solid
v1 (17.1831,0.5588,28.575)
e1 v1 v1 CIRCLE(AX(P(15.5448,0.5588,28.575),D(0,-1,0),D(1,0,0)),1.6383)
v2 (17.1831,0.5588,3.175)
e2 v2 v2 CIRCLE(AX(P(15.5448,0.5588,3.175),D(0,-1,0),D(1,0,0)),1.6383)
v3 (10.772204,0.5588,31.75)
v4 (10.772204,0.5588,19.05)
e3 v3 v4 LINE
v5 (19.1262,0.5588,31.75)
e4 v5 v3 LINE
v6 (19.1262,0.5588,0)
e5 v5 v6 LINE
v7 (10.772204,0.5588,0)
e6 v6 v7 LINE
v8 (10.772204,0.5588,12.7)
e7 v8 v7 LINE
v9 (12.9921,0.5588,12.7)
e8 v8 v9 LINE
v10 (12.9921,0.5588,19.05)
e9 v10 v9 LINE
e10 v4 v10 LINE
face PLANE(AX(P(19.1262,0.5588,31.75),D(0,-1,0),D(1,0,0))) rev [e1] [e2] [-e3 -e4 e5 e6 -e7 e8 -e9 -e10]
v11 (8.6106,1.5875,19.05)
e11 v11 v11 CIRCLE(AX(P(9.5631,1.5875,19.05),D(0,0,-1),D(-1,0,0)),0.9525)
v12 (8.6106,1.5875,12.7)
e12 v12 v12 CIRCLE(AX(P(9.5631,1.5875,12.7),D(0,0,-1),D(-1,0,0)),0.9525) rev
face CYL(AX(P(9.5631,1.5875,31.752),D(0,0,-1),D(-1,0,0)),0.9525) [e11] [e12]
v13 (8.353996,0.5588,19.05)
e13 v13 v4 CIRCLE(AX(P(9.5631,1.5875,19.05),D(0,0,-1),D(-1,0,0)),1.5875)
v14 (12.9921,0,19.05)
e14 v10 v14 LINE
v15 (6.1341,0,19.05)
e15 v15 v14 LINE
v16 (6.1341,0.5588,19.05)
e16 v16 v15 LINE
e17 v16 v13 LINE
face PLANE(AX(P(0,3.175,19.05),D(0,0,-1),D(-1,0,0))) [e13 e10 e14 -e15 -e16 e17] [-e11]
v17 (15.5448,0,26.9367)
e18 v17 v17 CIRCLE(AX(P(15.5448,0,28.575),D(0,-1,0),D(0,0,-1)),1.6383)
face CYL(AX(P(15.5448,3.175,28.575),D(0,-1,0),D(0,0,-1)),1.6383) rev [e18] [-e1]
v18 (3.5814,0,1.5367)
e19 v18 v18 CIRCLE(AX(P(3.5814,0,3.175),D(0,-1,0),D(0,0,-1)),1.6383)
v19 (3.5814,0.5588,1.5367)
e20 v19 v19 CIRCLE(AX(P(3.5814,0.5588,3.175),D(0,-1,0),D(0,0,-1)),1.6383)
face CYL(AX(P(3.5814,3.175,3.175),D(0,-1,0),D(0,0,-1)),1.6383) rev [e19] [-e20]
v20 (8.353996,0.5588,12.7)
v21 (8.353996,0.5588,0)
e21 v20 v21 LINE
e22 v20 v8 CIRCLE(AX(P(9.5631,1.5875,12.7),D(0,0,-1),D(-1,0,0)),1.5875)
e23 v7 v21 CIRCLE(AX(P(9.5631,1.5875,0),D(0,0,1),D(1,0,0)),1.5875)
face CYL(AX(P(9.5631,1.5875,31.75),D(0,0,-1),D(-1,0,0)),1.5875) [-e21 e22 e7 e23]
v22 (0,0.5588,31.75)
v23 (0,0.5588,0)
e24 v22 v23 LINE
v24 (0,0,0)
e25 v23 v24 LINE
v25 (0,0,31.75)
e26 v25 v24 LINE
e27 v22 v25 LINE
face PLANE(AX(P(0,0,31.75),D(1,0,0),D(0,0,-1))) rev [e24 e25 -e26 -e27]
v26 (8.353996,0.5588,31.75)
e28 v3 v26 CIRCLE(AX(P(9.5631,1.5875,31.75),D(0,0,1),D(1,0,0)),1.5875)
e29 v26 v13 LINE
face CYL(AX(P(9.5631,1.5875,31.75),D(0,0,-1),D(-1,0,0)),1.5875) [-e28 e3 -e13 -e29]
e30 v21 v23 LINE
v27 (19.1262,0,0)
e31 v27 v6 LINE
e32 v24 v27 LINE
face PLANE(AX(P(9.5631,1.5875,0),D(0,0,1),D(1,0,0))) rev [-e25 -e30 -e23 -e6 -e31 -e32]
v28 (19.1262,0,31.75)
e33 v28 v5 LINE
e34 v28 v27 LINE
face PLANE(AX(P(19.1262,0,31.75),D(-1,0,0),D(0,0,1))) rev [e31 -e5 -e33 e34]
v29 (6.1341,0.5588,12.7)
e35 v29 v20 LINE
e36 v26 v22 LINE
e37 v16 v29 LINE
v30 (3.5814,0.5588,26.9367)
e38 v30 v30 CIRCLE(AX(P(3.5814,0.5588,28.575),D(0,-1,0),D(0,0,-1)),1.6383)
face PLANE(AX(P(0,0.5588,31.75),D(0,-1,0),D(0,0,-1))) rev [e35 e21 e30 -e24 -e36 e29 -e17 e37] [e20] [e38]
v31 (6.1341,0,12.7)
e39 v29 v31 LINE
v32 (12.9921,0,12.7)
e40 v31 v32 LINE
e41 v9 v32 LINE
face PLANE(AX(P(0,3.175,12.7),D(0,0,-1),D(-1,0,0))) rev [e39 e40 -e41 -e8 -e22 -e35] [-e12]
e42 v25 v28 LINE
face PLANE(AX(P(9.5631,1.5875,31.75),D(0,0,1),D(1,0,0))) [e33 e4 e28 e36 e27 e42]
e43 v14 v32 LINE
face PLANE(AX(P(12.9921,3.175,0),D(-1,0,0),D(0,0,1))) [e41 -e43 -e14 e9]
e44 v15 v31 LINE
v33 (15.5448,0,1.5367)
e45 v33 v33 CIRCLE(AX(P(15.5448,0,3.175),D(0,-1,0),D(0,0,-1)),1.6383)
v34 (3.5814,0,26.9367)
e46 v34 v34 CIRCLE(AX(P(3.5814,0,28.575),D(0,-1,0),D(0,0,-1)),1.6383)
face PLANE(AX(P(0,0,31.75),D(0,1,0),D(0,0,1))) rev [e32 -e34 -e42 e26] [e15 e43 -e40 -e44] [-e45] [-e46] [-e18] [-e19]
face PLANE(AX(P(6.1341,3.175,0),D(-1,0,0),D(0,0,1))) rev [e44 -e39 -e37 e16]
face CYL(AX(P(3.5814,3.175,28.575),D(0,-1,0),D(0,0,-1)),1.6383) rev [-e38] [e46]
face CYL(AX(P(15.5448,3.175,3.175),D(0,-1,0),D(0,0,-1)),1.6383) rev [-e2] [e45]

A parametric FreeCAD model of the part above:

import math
import FreeCAD as App
import Part
import Sketcher

V = App.Vector
Q = App.Units.Quantity


def add_polygon(sketch, points):
    """Adds a closed chain of lines whose ends are joined by coincident constraints."""
    first, n = sketch.GeometryCount, len(points)
    for a, b in zip(points, points[1:] + points[:1]):
        sketch.addGeometry(Part.LineSegment(App.Vector(*a, 0), App.Vector(*b, 0)), False)
    for i in range(n):
        sketch.addConstraint(Sketcher.Constraint("Coincident", first + i, 2, first + (i + 1) % n, 1))

doc = App.newDocument("Part")
body = doc.addObject("PartDesign::Body", "Body")

# Sketch on XY plane
sketch1 = body.newObject("Sketcher::SketchObject", "Sketch")
sketch1.AttachmentSupport = (doc.getObject("XY_Plane"), [""])
sketch1.MapMode = "FlatFace"
sketch1.addGeometry(Part.LineSegment(V(0, 0, 0), V(19.1, 0, 0)), False)
sketch1.addGeometry(Part.LineSegment(V(19.1, 0, 0), V(19.1, 0.6, 0)), False)
sketch1.addGeometry(Part.LineSegment(V(19.1, 0.6, 0), V(10.8, 0.6, 0)), False)
sketch1.addGeometry(Part.ArcOfCircle(Part.Circle(V(9.6, 1.6, 0), V(0, 0, 1), 1.6), math.radians(-40), math.radians(220)), False)
sketch1.addGeometry(Part.LineSegment(V(8.4, 0.6, 0), V(0, 0.6, 0)), False)
sketch1.addGeometry(Part.LineSegment(V(0, 0.6, 0), V(0, 0, 0)), False)
sketch1.addConstraint(Sketcher.Constraint("Coincident", 0, 2, 1, 1))
sketch1.addConstraint(Sketcher.Constraint("Coincident", 1, 2, 2, 1))
sketch1.addConstraint(Sketcher.Constraint("Coincident", 2, 2, 3, 1))
sketch1.addConstraint(Sketcher.Constraint("Coincident", 3, 2, 4, 1))
sketch1.addConstraint(Sketcher.Constraint("Coincident", 4, 2, 5, 1))
sketch1.addConstraint(Sketcher.Constraint("Coincident", 5, 2, 0, 1))
sketch1.addConstraint(Sketcher.Constraint("Horizontal", 0))
sketch1.addConstraint(Sketcher.Constraint("Vertical", 1))
sketch1.addConstraint(Sketcher.Constraint("Horizontal", 2))
sketch1.addConstraint(Sketcher.Constraint("Horizontal", 4))
sketch1.addConstraint(Sketcher.Constraint("Vertical", 5))
sketch1.addConstraint(Sketcher.Constraint("Coincident", 5, 2, -1, 1))
sketch1.addConstraint(Sketcher.Constraint("Horizontal", 2, 2, 3, 2))
sketch1.addConstraint(Sketcher.Constraint("Equal", 2, 4))
sketch1.addConstraint(Sketcher.Constraint("Radius", 3, Q("0.0625 in")))
sketch1.addConstraint(Sketcher.Constraint("DistanceX", 0, 1, 0, 2, Q("0.753 in")))
sketch1.addConstraint(Sketcher.Constraint("DistanceY", 1, 1, 1, 2, Q("0.022 in")))
sketch1.addConstraint(Sketcher.Constraint("DistanceY", -1, 1, 3, 3, Q("0.0625 in")))
pad1 = body.newObject("PartDesign::Pad", "Pad")
pad1.Profile = sketch1
pad1.Length = Q("1.25 in")

# Sketch on XZ plane
sketch2 = body.newObject("Sketcher::SketchObject", "Sketch001")
sketch2.AttachmentSupport = (doc.getObject("XZ_Plane"), [""])
sketch2.MapMode = "FlatFace"
add_polygon(sketch2, [(6.1, 19.1), (6.1, 12.7), (13, 12.7), (13, 19.1)])  # lines 0-3
sketch2.addGeometry(Part.Circle(V(3.6, 28.6, 0), V(0, 0, 1), 1.6), False)  # 4
sketch2.addGeometry(Part.Circle(V(15.5, 28.6, 0), V(0, 0, 1), 1.6), False)  # 5
sketch2.addGeometry(Part.Circle(V(15.5, 3.2, 0), V(0, 0, 1), 1.6), False)  # 6
sketch2.addGeometry(Part.Circle(V(3.6, 3.2, 0), V(0, 0, 1), 1.6), False)  # 7
sketch2.addConstraint(Sketcher.Constraint("Vertical", 0))
sketch2.addConstraint(Sketcher.Constraint("Horizontal", 1))
sketch2.addConstraint(Sketcher.Constraint("Vertical", 2))
sketch2.addConstraint(Sketcher.Constraint("Horizontal", 3))
sketch2.addConstraint(Sketcher.Constraint("Equal", 4, 5))
sketch2.addConstraint(Sketcher.Constraint("Equal", 5, 6))
sketch2.addConstraint(Sketcher.Constraint("Equal", 6, 7))
sketch2.addConstraint(Sketcher.Constraint("Horizontal", 4, 3, 5, 3))
sketch2.addConstraint(Sketcher.Constraint("Horizontal", 6, 3, 7, 3))
sketch2.addConstraint(Sketcher.Constraint("Vertical", 5, 3, 6, 3))
sketch2.addConstraint(Sketcher.Constraint("Vertical", 4, 3, 7, 3))
sketch2.addConstraint(Sketcher.Constraint("Diameter", 4, Q("0.129 in")))
sketch2.addConstraint(Sketcher.Constraint("DistanceY", 6, 3, 5, 3, Q("1 in")))
sketch2.addConstraint(Sketcher.Constraint("DistanceX", 1, 1, 1, 2, Q("0.27 in")))
sketch2.addConstraint(Sketcher.Constraint("DistanceY", 0, 2, 0, 1, Q("0.25 in")))
sketch2.addConstraint(Sketcher.Constraint("DistanceY", -1, 1, 0, 2, Q("0.5 in")))
sketch2.addConstraint(Sketcher.Constraint("DistanceX", -1, 1, 4, 3, Q("0.141 in")))
sketch2.addConstraint(Sketcher.Constraint("DistanceY", -1, 1, 4, 3, Q("1.125 in")))
sketch2.addConstraint(Sketcher.Constraint("DistanceX", -1, 1, 5, 3, Q("0.612 in")))
sketch2.addConstraint(Sketcher.Constraint("DistanceX", -1, 1, 0, 2, Q("0.2415 in")))
pocket1 = body.newObject("PartDesign::Pocket", "Pocket")
pocket1.Profile = sketch2
pocket1.Type = "ThroughAll"

# Sketch on XY plane
sketch3 = body.newObject("Sketcher::SketchObject", "Sketch002")
sketch3.AttachmentSupport = (doc.getObject("XY_Plane"), [""])
sketch3.MapMode = "FlatFace"
sketch3.AttachmentOffset = App.Placement(V(0, 0, 0.5 * 25.4), App.Rotation())
sketch3.addGeometry(Part.Circle(V(9.6, 1.6, 0), V(0, 0, 1), 1), False)
sketch3.addConstraint(Sketcher.Constraint("Diameter", 0, Q("0.075 in")))
sketch3.addConstraint(Sketcher.Constraint("DistanceY", -1, 1, 0, 3, Q("0.0625 in")))
sketch3.addConstraint(Sketcher.Constraint("DistanceX", -1, 1, 0, 3, Q("0.3765 in")))
pad2 = body.newObject("PartDesign::Pad", "Pad001")
pad2.Profile = sketch3
pad2.Type = "UpToFirst"

doc.recompute()
